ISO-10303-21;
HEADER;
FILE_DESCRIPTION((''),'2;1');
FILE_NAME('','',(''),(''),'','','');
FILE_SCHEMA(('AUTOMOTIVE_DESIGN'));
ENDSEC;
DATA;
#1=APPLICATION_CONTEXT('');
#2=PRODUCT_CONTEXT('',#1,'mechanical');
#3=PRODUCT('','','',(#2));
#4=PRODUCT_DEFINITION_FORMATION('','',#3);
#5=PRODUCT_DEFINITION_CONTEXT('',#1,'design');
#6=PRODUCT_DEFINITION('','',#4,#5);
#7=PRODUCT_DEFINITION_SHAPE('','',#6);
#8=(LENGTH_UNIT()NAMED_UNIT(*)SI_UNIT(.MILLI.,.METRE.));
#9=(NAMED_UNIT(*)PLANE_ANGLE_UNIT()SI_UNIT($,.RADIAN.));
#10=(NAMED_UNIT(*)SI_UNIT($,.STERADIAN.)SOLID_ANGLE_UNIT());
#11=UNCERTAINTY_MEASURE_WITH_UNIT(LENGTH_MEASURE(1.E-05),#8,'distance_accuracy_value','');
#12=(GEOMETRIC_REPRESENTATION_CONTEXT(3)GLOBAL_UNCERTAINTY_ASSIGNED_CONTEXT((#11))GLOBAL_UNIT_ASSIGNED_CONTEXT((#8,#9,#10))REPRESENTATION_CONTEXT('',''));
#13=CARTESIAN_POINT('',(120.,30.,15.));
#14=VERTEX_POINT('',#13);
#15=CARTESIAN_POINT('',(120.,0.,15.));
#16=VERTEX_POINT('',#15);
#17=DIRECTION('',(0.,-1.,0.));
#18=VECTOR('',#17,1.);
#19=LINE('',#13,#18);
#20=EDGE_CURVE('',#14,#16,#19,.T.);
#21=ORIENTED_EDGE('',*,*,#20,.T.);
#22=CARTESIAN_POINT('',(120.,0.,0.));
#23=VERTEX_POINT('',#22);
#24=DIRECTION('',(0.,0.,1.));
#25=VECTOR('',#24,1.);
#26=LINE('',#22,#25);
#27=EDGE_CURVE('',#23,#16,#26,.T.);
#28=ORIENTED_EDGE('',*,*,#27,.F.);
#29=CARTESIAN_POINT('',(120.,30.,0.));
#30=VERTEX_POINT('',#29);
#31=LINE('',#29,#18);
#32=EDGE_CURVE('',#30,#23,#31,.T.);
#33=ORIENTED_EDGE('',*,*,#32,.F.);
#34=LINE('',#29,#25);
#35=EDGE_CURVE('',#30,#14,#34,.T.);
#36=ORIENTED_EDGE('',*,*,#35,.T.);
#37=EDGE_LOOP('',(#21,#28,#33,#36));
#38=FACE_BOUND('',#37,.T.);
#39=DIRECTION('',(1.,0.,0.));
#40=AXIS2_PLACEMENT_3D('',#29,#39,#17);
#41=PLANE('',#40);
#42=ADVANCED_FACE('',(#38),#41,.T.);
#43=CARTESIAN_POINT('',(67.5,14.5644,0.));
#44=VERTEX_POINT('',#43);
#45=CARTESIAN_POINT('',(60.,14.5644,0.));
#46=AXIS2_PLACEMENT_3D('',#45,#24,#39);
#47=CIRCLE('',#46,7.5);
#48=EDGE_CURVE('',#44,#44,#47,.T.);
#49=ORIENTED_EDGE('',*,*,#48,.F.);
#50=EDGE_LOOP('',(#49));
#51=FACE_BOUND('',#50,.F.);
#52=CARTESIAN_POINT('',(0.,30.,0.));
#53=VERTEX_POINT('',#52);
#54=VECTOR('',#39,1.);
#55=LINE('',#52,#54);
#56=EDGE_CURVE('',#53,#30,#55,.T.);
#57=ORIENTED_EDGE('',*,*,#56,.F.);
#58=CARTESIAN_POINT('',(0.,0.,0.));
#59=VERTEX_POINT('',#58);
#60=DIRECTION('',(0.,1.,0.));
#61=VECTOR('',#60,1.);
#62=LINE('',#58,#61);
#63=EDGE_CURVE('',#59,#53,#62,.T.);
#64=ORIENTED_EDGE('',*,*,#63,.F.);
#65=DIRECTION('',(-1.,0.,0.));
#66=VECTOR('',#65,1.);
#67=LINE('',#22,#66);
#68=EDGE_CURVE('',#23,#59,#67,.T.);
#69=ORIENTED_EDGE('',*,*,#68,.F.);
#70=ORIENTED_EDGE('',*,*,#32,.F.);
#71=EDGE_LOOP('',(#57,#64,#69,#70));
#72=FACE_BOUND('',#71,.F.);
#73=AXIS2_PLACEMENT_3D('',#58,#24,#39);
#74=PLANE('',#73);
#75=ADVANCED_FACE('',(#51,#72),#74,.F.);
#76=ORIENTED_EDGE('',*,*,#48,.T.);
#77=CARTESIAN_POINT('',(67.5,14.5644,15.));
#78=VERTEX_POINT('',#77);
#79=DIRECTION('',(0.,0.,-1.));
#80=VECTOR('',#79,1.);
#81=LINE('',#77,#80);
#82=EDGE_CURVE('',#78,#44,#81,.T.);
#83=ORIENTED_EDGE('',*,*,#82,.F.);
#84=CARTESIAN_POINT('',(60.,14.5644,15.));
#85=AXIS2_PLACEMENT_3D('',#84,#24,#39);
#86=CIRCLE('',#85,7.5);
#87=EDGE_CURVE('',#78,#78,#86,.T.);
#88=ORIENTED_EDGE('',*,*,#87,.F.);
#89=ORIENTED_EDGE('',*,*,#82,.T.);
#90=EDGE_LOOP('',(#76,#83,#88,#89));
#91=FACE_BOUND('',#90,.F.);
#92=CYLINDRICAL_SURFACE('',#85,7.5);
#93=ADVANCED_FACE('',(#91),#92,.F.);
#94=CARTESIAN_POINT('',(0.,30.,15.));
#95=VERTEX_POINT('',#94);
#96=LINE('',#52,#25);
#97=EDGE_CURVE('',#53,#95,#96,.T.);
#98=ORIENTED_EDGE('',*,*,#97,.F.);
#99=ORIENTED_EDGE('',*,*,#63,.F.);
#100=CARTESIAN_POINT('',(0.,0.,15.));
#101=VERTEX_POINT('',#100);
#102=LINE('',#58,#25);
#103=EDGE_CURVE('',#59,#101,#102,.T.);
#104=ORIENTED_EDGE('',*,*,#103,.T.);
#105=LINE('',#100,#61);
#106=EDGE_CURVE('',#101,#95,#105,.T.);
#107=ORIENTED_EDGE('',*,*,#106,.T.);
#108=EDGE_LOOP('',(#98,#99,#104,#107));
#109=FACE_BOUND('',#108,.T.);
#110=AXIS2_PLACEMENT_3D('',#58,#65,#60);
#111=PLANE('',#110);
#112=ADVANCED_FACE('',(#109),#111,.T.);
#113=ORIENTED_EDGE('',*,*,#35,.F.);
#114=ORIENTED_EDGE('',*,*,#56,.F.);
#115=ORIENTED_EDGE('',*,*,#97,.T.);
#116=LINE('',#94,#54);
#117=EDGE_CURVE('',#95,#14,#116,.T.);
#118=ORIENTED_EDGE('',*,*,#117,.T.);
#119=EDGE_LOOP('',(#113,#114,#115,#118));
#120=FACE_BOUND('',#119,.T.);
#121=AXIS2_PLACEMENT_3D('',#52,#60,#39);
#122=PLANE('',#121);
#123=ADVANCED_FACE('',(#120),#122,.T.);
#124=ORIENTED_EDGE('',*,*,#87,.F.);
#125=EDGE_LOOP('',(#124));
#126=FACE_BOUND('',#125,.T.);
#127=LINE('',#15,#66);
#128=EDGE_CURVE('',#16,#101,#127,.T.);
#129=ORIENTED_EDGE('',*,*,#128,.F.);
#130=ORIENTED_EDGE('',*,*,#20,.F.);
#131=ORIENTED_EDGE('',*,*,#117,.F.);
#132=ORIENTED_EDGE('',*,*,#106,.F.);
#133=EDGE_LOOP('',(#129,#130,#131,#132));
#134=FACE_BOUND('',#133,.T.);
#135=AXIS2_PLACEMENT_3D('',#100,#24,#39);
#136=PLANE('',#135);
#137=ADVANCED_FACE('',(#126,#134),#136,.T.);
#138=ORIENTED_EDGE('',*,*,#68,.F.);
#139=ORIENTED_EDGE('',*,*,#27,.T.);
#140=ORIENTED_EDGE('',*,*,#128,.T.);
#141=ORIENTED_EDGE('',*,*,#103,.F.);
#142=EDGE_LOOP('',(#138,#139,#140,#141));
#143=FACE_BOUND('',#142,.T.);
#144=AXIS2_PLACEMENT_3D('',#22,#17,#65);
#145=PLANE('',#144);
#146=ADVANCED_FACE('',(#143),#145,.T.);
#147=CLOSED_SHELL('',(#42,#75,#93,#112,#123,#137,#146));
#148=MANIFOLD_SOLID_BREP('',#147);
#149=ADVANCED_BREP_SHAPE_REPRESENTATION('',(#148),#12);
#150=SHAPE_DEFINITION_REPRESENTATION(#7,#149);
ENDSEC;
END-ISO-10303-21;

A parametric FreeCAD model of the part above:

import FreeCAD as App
import Part
import Sketcher

doc = App.newDocument("Part")
body = doc.addObject("PartDesign::Body", "Body")

sketch1 = body.newObject("Sketcher::SketchObject", "Sketch")
sketch1.AttachmentSupport = (doc.getObject("XY_Plane"), [""])
sketch1.MapMode = "FlatFace"
sketch1.addGeometry([
    Part.LineSegment(App.Vector(120, 30, 0), App.Vector(0, 30, 0)),
    Part.LineSegment(App.Vector(0, 30, 0), App.Vector(0, 0, 0)),
    Part.LineSegment(App.Vector(0, 0, 0), App.Vector(120, 0, 0)),
    Part.LineSegment(App.Vector(120, 0, 0), App.Vector(120, 30, 0)),
], False)
sketch1.addConstraint([
    Sketcher.Constraint("Coincident", 0, 2, 1, 1),
    Sketcher.Constraint("Coincident", 1, 2, 2, 1),
    Sketcher.Constraint("Coincident", 2, 2, 3, 1),
    Sketcher.Constraint("Coincident", 3, 2, 0, 1),
    Sketcher.Constraint("Horizontal", 0),
    Sketcher.Constraint("Vertical", 1),
    Sketcher.Constraint("Horizontal", 2),
    Sketcher.Constraint("Vertical", 3),
    Sketcher.Constraint("Coincident", 1, 2, -1, 1),
    Sketcher.Constraint("DistanceX", 0, 2, 0, 1, 120.0),
    Sketcher.Constraint("DistanceY", 1, 2, 1, 1, 30.0),
])
pad1 = body.newObject("PartDesign::Pad", "Pad")
pad1.Profile = sketch1
pad1.Length = 15

sketch2 = body.newObject("Sketcher::SketchObject", "Sketch001")
sketch2.AttachmentSupport = (doc.getObject("XY_Plane"), [""])
sketch2.MapMode = "FlatFace"
sketch2.AttachmentOffset = App.Placement(App.Vector(0, 0, 15), App.Rotation())
sketch2.addGeometry(Part.Circle(App.Vector(60, 14.5644, 0), App.Vector(0, 0, 1), 7.5), False)
sketch2.addConstraint([
    Sketcher.Constraint("Diameter", 0, 15.0),
    Sketcher.Constraint("DistanceX", -1, 1, 0, 3, 60.0),
    Sketcher.Constraint("DistanceY", -1, 1, 0, 3, 14.5644),
])
pocket1 = body.newObject("PartDesign::Pocket", "Pocket")
pocket1.Profile = sketch2
pocket1.Length = 15

doc.recompute()
